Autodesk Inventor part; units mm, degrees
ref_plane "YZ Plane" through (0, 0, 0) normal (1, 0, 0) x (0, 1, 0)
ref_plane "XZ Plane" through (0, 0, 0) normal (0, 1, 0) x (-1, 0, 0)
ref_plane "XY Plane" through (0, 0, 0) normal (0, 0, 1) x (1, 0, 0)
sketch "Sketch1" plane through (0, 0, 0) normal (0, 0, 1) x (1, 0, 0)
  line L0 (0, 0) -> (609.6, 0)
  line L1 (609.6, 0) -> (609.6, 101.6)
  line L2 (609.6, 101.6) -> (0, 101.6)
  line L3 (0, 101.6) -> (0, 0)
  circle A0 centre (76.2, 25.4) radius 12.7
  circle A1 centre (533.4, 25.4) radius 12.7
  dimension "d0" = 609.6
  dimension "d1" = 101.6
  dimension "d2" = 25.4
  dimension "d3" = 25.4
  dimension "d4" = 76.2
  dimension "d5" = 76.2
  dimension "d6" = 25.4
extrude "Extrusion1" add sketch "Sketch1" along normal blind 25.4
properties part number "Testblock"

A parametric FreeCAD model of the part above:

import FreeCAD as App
import Part
import Sketcher

V = App.Vector
Q = App.Units.Quantity


def add_polygon(sketch, points):
    """Adds a closed chain of lines whose ends are joined by coincident constraints."""
    first, n = sketch.GeometryCount, len(points)
    for a, b in zip(points, points[1:] + points[:1]):
        sketch.addGeometry(Part.LineSegment(App.Vector(*a, 0), App.Vector(*b, 0)), False)
    for i in range(n):
        sketch.addConstraint(Sketcher.Constraint("Coincident", first + i, 2, first + (i + 1) % n, 1))

doc = App.newDocument("Part")
body = doc.addObject("PartDesign::Body", "Body")

# Sketch on XY plane
sketch1 = body.newObject("Sketcher::SketchObject", "Sketch")
sketch1.AttachmentSupport = (doc.getObject("XY_Plane"), [""])
sketch1.MapMode = "FlatFace"
add_polygon(sketch1, [(0, 102), (0, 0), (610, 0), (610, 102)])  # lines 0-3
sketch1.addGeometry(Part.Circle(V(76, 25, 0), V(0, 0, 1), 13), False)  # 4
sketch1.addGeometry(Part.Circle(V(533, 25, 0), V(0, 0, 1), 13), False)  # 5
sketch1.addConstraint(Sketcher.Constraint("Vertical", 0))
sketch1.addConstraint(Sketcher.Constraint("Horizontal", 1))
sketch1.addConstraint(Sketcher.Constraint("Vertical", 2))
sketch1.addConstraint(Sketcher.Constraint("Horizontal", 3))
sketch1.addConstraint(Sketcher.Constraint("Coincident", 0, 2, -1, 1))
sketch1.addConstraint(Sketcher.Constraint("Equal", 4, 5))
sketch1.addConstraint(Sketcher.Constraint("Horizontal", 4, 3, 5, 3))
sketch1.addConstraint(Sketcher.Constraint("Diameter", 4, Q("1 in")))
sketch1.addConstraint(Sketcher.Constraint("DistanceX", 1, 1, 1, 2, Q("24 in")))
sketch1.addConstraint(Sketcher.Constraint("DistanceY", 0, 2, 0, 1, Q("4 in")))
sketch1.addConstraint(Sketcher.Constraint("DistanceX", -1, 1, 4, 3, Q("3 in")))
sketch1.addConstraint(Sketcher.Constraint("DistanceY", -1, 1, 4, 3, Q("1 in")))
sketch1.addConstraint(Sketcher.Constraint("DistanceX", 5, 3, 1, 2, Q("3 in")))
pad1 = body.newObject("PartDesign::Pad", "Pad")
pad1.Profile = sketch1
pad1.Length = Q("1 in")

doc.recompute()
